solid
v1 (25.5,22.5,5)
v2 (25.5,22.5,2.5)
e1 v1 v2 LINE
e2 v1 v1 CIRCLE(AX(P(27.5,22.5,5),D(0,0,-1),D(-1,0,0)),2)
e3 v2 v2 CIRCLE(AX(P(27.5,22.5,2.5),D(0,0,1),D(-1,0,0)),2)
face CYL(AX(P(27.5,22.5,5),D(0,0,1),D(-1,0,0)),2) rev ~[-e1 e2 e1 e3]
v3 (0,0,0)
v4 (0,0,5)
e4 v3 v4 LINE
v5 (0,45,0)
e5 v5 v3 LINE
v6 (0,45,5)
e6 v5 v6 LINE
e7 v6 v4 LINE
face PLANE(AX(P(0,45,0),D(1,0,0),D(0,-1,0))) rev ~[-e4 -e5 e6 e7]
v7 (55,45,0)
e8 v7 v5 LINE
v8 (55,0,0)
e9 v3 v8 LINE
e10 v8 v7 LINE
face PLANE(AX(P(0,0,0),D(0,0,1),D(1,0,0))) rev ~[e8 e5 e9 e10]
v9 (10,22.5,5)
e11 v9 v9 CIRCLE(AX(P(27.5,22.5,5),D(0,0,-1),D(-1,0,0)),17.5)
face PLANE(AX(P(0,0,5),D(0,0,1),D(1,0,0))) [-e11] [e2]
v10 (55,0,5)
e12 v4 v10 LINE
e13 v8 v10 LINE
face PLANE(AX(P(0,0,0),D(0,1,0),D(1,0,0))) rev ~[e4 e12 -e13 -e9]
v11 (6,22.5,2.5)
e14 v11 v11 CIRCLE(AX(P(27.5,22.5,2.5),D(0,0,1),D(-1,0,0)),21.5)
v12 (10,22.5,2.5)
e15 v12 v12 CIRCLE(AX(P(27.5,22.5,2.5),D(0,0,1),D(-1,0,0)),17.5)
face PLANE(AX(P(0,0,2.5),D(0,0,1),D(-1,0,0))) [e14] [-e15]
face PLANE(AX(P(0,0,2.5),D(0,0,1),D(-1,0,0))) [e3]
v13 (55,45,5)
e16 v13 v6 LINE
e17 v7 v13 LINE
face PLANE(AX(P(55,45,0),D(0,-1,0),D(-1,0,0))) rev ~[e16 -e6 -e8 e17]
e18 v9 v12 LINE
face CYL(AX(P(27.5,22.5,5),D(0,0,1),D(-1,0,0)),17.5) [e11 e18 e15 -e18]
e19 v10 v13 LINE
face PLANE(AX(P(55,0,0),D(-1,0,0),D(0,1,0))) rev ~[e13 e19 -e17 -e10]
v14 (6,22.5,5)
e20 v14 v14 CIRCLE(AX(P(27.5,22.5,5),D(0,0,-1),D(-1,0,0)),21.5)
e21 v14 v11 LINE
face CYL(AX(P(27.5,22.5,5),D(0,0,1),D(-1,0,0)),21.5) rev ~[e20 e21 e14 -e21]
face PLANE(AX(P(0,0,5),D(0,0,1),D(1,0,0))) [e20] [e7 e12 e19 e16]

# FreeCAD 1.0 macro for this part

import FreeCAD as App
import Part
import Sketcher


def add_polygon(sketch, points):
    """Adds a closed chain of lines whose ends are joined by coincident constraints."""
    first, n = sketch.GeometryCount, len(points)
    for a, b in zip(points, points[1:] + points[:1]):
        sketch.addGeometry(Part.LineSegment(App.Vector(*a, 0), App.Vector(*b, 0)), False)
    for i in range(n):
        sketch.addConstraint(Sketcher.Constraint("Coincident", first + i, 2, first + (i + 1) % n, 1))

doc = App.newDocument("Part")
body = doc.addObject("PartDesign::Body", "Body")

# Sketch on XY plane
sketch1 = body.newObject("Sketcher::SketchObject", "Sketch")
sketch1.AttachmentSupport = (doc.getObject("XY_Plane"), [""])
sketch1.MapMode = "FlatFace"
add_polygon(sketch1, [(0, 45), (0, 0), (55, 0), (55, 45)])  # lines 0-3
sketch1.addConstraint(Sketcher.Constraint("Vertical", 0))
sketch1.addConstraint(Sketcher.Constraint("Horizontal", 1))
sketch1.addConstraint(Sketcher.Constraint("Vertical", 2))
sketch1.addConstraint(Sketcher.Constraint("Horizontal", 3))
sketch1.addConstraint(Sketcher.Constraint("Coincident", 0, 2, -1, 1))
sketch1.addConstraint(Sketcher.Constraint("DistanceX", 1, 1, 1, 2, 55.0))
sketch1.addConstraint(Sketcher.Constraint("DistanceY", 0, 2, 0, 1, 45.0))
pad1 = body.newObject("PartDesign::Pad", "Pad")
pad1.Profile = sketch1
pad1.Length = 5

# Sketch on XY plane
sketch2 = body.newObject("Sketcher::SketchObject", "Sketch001")
sketch2.AttachmentSupport = (doc.getObject("XY_Plane"), [""])
sketch2.MapMode = "FlatFace"
sketch2.AttachmentOffset = App.Placement(App.Vector(0, 0, 5), App.Rotation())
sketch2.addGeometry(Part.Circle(App.Vector(27.5, 22.5, 0), App.Vector(0, 0, 1), 21.5), False)
sketch2.addGeometry(Part.Circle(App.Vector(27.5, 22.5, 0), App.Vector(0, 0, 1), 17.5), False)
sketch2.addGeometry(Part.Circle(App.Vector(27.5, 22.5, 0), App.Vector(0, 0, 1), 2), False)
sketch2.addConstraint(Sketcher.Constraint("Coincident", 1, 3, 0, 3))
sketch2.addConstraint(Sketcher.Constraint("Coincident", 2, 3, 0, 3))
sketch2.addConstraint(Sketcher.Constraint("Diameter", 0, 43.0))
sketch2.addConstraint(Sketcher.Constraint("Diameter", 1, 35.0))
sketch2.addConstraint(Sketcher.Constraint("Diameter", 2, 4.0))
sketch2.addConstraint(Sketcher.Constraint("DistanceX", -1, 1, 0, 3, 27.5))
sketch2.addConstraint(Sketcher.Constraint("DistanceY", -1, 1, 0, 3, 22.5))
pocket1 = body.newObject("PartDesign::Pocket", "Pocket")
pocket1.Profile = sketch2
pocket1.Length = 2.5

doc.recompute()
